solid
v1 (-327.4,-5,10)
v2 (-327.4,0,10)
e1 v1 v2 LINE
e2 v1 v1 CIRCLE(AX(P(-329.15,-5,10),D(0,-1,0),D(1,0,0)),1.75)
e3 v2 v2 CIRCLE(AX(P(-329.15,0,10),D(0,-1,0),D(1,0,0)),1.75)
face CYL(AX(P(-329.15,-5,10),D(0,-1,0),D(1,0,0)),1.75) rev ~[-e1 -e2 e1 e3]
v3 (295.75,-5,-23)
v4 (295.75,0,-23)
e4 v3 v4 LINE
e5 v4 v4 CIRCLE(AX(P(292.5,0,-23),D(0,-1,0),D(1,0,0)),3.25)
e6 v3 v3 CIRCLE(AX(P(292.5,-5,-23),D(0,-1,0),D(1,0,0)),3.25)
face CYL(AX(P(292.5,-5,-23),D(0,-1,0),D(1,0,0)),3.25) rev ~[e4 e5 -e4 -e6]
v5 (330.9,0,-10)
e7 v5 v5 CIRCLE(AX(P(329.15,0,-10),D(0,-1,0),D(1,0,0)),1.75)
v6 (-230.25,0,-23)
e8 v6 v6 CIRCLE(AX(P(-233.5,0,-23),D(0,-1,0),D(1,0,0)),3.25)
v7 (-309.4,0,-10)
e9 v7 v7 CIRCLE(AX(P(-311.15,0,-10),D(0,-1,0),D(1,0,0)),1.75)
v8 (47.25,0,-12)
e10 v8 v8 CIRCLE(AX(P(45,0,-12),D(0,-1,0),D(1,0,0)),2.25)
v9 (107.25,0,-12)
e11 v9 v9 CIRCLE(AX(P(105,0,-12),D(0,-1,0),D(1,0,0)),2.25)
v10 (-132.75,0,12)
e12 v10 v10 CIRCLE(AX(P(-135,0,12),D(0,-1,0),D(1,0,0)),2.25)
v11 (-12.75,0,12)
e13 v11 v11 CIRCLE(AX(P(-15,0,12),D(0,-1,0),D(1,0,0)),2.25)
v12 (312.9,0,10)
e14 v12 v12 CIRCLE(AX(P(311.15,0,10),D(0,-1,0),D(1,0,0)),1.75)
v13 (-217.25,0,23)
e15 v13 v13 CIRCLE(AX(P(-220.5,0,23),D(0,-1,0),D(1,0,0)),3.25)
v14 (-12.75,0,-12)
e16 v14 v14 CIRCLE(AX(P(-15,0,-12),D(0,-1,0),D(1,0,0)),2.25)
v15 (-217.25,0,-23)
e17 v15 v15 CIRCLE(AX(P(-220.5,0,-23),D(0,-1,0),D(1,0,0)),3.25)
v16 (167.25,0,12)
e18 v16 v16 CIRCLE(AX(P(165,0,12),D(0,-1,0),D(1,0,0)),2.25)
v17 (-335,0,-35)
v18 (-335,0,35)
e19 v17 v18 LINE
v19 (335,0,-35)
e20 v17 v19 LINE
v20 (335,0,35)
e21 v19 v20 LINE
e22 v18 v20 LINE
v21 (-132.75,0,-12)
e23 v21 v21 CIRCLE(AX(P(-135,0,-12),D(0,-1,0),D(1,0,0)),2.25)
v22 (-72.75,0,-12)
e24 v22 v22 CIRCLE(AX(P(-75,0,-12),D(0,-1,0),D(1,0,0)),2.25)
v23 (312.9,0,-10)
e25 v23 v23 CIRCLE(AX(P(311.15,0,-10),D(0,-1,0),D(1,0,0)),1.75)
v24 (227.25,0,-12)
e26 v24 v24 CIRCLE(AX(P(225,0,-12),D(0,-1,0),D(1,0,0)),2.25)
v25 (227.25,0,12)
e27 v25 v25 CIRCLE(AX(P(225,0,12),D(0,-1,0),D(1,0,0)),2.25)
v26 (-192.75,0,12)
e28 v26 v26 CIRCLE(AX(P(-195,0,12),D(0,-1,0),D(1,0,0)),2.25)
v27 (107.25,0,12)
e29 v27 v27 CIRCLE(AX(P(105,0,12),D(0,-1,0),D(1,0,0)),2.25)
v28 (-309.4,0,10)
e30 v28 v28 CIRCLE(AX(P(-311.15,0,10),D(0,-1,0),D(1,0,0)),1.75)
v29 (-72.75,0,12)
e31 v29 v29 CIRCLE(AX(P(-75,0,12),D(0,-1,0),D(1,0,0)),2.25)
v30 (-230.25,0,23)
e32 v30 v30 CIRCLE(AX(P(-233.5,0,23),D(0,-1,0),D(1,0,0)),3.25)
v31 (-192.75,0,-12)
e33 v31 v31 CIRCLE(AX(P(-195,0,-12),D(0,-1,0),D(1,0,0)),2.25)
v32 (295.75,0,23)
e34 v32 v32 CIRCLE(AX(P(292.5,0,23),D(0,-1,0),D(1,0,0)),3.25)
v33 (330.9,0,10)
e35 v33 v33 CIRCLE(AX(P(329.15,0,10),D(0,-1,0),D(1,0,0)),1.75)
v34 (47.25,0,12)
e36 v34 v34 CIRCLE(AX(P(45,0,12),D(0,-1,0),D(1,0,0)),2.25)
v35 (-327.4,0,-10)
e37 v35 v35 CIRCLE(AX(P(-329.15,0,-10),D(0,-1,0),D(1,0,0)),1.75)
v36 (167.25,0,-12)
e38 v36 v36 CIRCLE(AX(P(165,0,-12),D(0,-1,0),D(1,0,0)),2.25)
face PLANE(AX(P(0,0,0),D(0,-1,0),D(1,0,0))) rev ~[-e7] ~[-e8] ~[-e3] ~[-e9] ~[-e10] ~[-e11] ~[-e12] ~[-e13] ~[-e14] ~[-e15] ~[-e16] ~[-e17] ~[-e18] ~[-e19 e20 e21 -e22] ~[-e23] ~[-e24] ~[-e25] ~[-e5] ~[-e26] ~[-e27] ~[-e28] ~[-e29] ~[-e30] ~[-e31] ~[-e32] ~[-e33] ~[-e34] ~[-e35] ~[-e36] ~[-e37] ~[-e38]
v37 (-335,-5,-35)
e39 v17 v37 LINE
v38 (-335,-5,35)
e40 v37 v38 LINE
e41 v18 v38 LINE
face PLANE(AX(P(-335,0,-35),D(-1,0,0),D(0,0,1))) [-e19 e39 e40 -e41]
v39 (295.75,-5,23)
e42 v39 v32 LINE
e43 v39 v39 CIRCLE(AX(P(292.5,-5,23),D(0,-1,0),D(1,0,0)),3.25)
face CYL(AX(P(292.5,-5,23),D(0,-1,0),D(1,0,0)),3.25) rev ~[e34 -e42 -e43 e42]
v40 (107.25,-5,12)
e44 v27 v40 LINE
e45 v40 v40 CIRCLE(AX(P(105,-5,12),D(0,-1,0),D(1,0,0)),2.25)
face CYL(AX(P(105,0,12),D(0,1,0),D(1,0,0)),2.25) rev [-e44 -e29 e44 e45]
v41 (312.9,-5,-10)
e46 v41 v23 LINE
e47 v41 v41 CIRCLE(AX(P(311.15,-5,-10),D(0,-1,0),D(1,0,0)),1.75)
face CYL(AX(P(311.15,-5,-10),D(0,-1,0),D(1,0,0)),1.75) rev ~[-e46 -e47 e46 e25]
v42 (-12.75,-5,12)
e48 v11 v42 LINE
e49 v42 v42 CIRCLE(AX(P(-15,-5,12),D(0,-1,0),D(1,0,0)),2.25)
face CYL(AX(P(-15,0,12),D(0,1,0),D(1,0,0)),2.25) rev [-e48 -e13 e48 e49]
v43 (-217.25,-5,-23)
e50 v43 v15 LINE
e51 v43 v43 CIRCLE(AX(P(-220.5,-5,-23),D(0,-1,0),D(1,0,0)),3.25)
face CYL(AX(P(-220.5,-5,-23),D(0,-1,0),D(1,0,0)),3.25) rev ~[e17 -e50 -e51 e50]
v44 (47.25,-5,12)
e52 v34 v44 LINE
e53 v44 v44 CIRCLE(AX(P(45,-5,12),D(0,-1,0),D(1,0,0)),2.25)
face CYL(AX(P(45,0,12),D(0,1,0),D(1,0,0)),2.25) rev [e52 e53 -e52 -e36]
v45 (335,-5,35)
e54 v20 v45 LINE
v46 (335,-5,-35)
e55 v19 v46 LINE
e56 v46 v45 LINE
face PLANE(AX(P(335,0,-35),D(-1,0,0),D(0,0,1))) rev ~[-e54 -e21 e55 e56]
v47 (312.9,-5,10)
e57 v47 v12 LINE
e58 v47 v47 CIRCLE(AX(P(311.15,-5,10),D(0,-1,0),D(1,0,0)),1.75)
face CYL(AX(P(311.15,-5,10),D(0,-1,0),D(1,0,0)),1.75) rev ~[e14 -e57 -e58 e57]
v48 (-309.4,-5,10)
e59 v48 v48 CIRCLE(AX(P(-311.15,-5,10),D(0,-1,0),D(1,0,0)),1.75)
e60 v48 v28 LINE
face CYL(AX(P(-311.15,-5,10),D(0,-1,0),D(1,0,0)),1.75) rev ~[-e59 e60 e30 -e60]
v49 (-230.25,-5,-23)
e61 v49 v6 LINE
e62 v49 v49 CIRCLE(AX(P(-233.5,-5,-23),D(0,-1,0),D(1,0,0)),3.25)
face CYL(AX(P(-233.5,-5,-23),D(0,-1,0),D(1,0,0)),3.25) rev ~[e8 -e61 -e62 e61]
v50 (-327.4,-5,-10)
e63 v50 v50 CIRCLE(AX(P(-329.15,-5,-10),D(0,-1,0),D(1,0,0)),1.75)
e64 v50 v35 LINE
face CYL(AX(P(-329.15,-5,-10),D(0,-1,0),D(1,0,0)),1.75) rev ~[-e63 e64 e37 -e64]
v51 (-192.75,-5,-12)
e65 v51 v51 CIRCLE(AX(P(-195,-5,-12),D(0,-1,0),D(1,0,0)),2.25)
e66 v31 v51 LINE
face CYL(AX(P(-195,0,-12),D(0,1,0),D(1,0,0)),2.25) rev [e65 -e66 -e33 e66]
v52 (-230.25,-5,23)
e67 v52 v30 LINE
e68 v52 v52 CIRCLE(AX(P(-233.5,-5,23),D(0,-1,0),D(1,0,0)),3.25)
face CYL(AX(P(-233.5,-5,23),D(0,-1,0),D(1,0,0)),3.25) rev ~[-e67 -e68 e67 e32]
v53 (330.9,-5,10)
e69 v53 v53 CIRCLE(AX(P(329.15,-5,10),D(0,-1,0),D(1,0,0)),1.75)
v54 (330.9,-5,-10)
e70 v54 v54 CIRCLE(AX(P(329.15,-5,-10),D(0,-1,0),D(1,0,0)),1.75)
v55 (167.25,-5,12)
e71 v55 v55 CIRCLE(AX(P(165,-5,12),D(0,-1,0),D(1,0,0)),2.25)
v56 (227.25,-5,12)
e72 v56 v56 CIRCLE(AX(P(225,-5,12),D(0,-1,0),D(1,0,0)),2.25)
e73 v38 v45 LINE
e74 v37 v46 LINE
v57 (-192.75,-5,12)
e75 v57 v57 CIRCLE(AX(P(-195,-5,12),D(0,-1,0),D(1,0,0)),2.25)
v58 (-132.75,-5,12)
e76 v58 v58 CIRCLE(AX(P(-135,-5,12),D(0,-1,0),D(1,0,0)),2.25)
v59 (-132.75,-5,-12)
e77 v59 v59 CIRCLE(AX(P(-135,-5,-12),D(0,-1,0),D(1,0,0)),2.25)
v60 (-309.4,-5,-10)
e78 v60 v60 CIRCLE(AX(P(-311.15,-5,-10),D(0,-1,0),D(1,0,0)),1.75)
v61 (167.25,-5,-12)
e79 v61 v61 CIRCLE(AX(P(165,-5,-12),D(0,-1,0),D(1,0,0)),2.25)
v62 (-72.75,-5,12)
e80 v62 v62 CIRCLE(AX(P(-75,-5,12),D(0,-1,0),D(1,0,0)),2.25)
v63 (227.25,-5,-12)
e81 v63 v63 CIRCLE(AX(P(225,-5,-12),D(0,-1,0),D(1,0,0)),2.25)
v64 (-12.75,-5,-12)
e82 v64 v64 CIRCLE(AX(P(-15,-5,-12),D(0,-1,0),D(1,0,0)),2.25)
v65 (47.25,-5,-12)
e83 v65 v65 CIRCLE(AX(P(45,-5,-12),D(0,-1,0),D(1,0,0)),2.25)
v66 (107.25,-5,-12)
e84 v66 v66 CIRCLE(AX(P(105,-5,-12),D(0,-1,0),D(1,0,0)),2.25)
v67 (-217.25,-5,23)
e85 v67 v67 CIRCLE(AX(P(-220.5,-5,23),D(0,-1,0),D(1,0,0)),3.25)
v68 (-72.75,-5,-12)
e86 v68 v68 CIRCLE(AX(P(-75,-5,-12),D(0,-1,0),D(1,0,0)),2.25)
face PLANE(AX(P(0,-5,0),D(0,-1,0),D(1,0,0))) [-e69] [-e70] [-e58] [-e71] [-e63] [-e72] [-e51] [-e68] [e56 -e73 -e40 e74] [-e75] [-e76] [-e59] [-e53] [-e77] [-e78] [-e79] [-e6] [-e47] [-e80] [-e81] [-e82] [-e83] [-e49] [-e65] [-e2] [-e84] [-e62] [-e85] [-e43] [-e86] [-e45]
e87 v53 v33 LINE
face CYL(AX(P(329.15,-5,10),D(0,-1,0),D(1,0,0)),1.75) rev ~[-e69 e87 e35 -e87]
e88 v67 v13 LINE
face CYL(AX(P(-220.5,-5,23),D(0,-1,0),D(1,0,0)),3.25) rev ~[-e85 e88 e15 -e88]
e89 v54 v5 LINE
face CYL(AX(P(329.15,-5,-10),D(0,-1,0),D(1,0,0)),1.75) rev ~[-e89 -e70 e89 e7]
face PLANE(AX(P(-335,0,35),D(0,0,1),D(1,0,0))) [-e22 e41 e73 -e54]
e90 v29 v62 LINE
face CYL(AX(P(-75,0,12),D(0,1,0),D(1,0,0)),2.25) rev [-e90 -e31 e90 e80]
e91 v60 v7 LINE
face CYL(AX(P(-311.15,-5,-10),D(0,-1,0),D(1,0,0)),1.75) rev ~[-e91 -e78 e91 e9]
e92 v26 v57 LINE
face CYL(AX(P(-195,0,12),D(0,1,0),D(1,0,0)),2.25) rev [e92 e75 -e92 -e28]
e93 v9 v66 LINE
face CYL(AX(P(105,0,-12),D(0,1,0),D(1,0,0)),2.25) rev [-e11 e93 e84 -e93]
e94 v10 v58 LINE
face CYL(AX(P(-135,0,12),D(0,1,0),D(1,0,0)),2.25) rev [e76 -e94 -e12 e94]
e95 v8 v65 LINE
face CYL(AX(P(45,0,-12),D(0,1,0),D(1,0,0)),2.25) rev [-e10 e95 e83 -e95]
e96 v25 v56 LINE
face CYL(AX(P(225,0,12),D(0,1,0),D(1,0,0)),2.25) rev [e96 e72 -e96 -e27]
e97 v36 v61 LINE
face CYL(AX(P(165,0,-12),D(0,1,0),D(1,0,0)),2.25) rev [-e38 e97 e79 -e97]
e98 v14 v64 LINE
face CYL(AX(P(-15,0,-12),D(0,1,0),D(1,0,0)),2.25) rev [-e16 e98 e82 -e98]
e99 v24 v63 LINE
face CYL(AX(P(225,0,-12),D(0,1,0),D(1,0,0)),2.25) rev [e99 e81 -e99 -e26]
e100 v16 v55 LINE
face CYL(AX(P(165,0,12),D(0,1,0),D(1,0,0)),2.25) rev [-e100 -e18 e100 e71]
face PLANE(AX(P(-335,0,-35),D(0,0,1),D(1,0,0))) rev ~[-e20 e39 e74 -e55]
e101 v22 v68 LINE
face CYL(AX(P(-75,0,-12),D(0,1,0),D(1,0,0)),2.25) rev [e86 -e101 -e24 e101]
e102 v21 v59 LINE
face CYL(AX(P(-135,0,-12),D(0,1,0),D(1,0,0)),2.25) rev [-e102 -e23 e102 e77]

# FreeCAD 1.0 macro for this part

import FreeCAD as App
import Part
import Sketcher

doc = App.newDocument("Part")
params = doc.addObject("Spreadsheet::Sheet", "Params")
for row, (alias, value) in enumerate([
    ("sketch1_width", "670 mm"),
    ("sketch1_height", "70 mm"),
    ("pad1_length", "5 mm"),
    ("sketch2_diameter", "3.5 mm"),
    ("sketch3_diameter", "6.5 mm"),
    ("sketch4_diameter", "4.5 mm"),
], start=1):
    params.set(f"A{row}", alias)
    params.set(f"B{row}", "=" + value)
    params.setAlias(f"B{row}", alias)

body = doc.addObject("PartDesign::Body", "Body")

sketch1 = doc.addObject("Sketcher::SketchObject", "Sketch")
body.addObject(sketch1)
sketch1.AttachmentSupport = (doc.XZ_Plane, [""])
sketch1.MapMode = "FlatFace"
sketch1.addGeometry([
    Part.LineSegment(App.Vector(-335, 35, 0), App.Vector(-335, -35, 0)),
    Part.LineSegment(App.Vector(-335, -35, 0), App.Vector(335, -35, 0)),
    Part.LineSegment(App.Vector(335, -35, 0), App.Vector(335, 35, 0)),
    Part.LineSegment(App.Vector(335, 35, 0), App.Vector(-335, 35, 0)),
], False)
sketch1.addConstraint([
    Sketcher.Constraint("Coincident", 0, 2, 1, 1),
    Sketcher.Constraint("Coincident", 1, 2, 2, 1),
    Sketcher.Constraint("Coincident", 2, 2, 3, 1),
    Sketcher.Constraint("Coincident", 3, 2, 0, 1),
    Sketcher.Constraint("Vertical", 0),
    Sketcher.Constraint("Horizontal", 1),
    Sketcher.Constraint("Vertical", 2),
    Sketcher.Constraint("Horizontal", 3),
    Sketcher.Constraint("Symmetric", 0, 2, 2, 2, -1, 1),
    Sketcher.Constraint("DistanceX", 1, 1, 1, 2, 670.0),
    Sketcher.Constraint("DistanceY", 0, 2, 0, 1, 70.0),
])
sketch1.setExpression("Constraints[9]", "Params.sketch1_width")
sketch1.setExpression("Constraints[10]", "Params.sketch1_height")
pad1 = doc.addObject("PartDesign::Pad", "Pad")
body.addObject(pad1)
pad1.Profile = sketch1
pad1.setExpression("Length", "Params.pad1_length")

sketch2 = doc.addObject("Sketcher::SketchObject", "Sketch001")
body.addObject(sketch2)
sketch2.AttachmentSupport = (doc.XZ_Plane, [""])
sketch2.MapMode = "FlatFace"
sketch2.AttachmentOffset = App.Placement(App.Vector(0, 0, 5), App.Rotation())
sketch2.addGeometry([
    Part.Circle(App.Vector(-329.1, 10, 0), App.Vector(0, 0, 1), 1.8),
    Part.Circle(App.Vector(-311.1, 10, 0), App.Vector(0, 0, 1), 1.8),
    Part.Circle(App.Vector(-329.1, -10, 0), App.Vector(0, 0, 1), 1.8),
    Part.Circle(App.Vector(-311.1, -10, 0), App.Vector(0, 0, 1), 1.8),
    Part.Circle(App.Vector(329.1, 10, 0), App.Vector(0, 0, 1), 1.8),
    Part.Circle(App.Vector(311.1, 10, 0), App.Vector(0, 0, 1), 1.8),
    Part.Circle(App.Vector(311.1, -10, 0), App.Vector(0, 0, 1), 1.8),
    Part.Circle(App.Vector(329.1, -10, 0), App.Vector(0, 0, 1), 1.8),
], False)
sketch2.addConstraint([
    Sketcher.Constraint("Equal", 0, 1),
    Sketcher.Constraint("Equal", 1, 2),
    Sketcher.Constraint("Equal", 2, 3),
    Sketcher.Constraint("Equal", 3, 4),
    Sketcher.Constraint("Equal", 4, 5),
    Sketcher.Constraint("Equal", 5, 6),
    Sketcher.Constraint("Equal", 6, 7),
    Sketcher.Constraint("Symmetric", 2, 3, 4, 3, -1, 1),
    Sketcher.Constraint("Symmetric", 3, 3, 5, 3, -1, 1),
    Sketcher.Constraint("Symmetric", 1, 3, 6, 3, -1, 1),
    Sketcher.Constraint("Symmetric", 0, 3, 7, 3, -1, 1),
    Sketcher.Constraint("Symmetric", 0, 3, 4, 3, -2),
    Sketcher.Constraint("Symmetric", 1, 3, 5, 3, -2),
    Sketcher.Constraint("Horizontal", 0, 3, 1, 3),
    Sketcher.Constraint("Diameter", 0, 3.5),
    Sketcher.Constraint("DistanceY", -1, 1, 0, 3, 10.0),
    Sketcher.Constraint("DistanceX", 0, 3, 1, 3, 18.0),
    Sketcher.Constraint("DistanceX", 1, 3, 4, 3, 640.3),
])
sketch2.setExpression("Constraints[14]", "Params.sketch2_diameter")
pocket1 = doc.addObject("PartDesign::Pocket", "Pocket")
body.addObject(pocket1)
pocket1.Profile = sketch2
pocket1.Type = "ThroughAll"

sketch3 = doc.addObject("Sketcher::SketchObject", "Sketch002")
body.addObject(sketch3)
sketch3.AttachmentSupport = (doc.XZ_Plane, [""])
sketch3.MapMode = "FlatFace"
sketch3.AttachmentOffset = App.Placement(App.Vector(0, 0, 5), App.Rotation())
sketch3.addGeometry([
    Part.Circle(App.Vector(292.5, 23, 0), App.Vector(0, 0, 1), 3.2),
    Part.Circle(App.Vector(292.5, -23, 0), App.Vector(0, 0, 1), 3.2),
    Part.Circle(App.Vector(-233.5, 23, 0), App.Vector(0, 0, 1), 3.2),
    Part.Circle(App.Vector(-220.5, 23, 0), App.Vector(0, 0, 1), 3.2),
    Part.Circle(App.Vector(-220.5, -23, 0), App.Vector(0, 0, 1), 3.2),
    Part.Circle(App.Vector(-233.5, -23, 0), App.Vector(0, 0, 1), 3.2),
], False)
sketch3.addConstraint([
    Sketcher.Constraint("Equal", 0, 1),
    Sketcher.Constraint("Equal", 1, 2),
    Sketcher.Constraint("Equal", 2, 3),
    Sketcher.Constraint("Equal", 3, 4),
    Sketcher.Constraint("Equal", 4, 5),
    Sketcher.Constraint("Symmetric", 0, 3, 1, 3, -1),
    Sketcher.Constraint("Symmetric", 3, 3, 4, 3, -1),
    Sketcher.Constraint("Symmetric", 2, 3, 5, 3, -1),
    Sketcher.Constraint("Horizontal", 0, 3, 2, 3),
    Sketcher.Constraint("Horizontal", 2, 3, 3, 3),
    Sketcher.Constraint("Diameter", 0, 6.5),
    Sketcher.Constraint("DistanceY", -1, 1, 0, 3, 23.0),
    Sketcher.Constraint("DistanceX", 2, 3, 0, 3, 526.0),
    Sketcher.Constraint("DistanceX", 2, 3, 3, 3, 13.0),
    Sketcher.Constraint("DistanceX", -1, 1, 0, 3, 292.5),
])
sketch3.setExpression("Constraints[10]", "Params.sketch3_diameter")
pocket2 = doc.addObject("PartDesign::Pocket", "Pocket001")
body.addObject(pocket2)
pocket2.Profile = sketch3
pocket2.Type = "ThroughAll"

sketch4 = doc.addObject("Sketcher::SketchObject", "Sketch003")
body.addObject(sketch4)
sketch4.AttachmentSupport = (doc.XZ_Plane, [""])
sketch4.MapMode = "FlatFace"
sketch4.addGeometry([
    Part.Circle(App.Vector(-15, 12, 0), App.Vector(0, 0, 1), 2.2),
    Part.Circle(App.Vector(-75, 12, 0), App.Vector(0, 0, 1), 2.2),
    Part.Circle(App.Vector(-135, 12, 0), App.Vector(0, 0, 1), 2.2),
    Part.Circle(App.Vector(-195, 12, 0), App.Vector(0, 0, 1), 2.2),
    Part.Circle(App.Vector(225, 12, 0), App.Vector(0, 0, 1), 2.2),
    Part.Circle(App.Vector(165, 12, 0), App.Vector(0, 0, 1), 2.2),
    Part.Circle(App.Vector(105, 12, 0), App.Vector(0, 0, 1), 2.2),
    Part.Circle(App.Vector(45, 12, 0), App.Vector(0, 0, 1), 2.2),
    Part.Circle(App.Vector(-195, -12, 0), App.Vector(0, 0, 1), 2.2),
    Part.Circle(App.Vector(-135, -12, 0), App.Vector(0, 0, 1), 2.2),
    Part.Circle(App.Vector(-75, -12, 0), App.Vector(0, 0, 1), 2.2),
    Part.Circle(App.Vector(-15, -12, 0), App.Vector(0, 0, 1), 2.2),
    Part.Circle(App.Vector(45, -12, 0), App.Vector(0, 0, 1), 2.2),
    Part.Circle(App.Vector(105, -12, 0), App.Vector(0, 0, 1), 2.2),
    Part.Circle(App.Vector(165, -12, 0), App.Vector(0, 0, 1), 2.2),
    Part.Circle(App.Vector(225, -12, 0), App.Vector(0, 0, 1), 2.2),
], False)
sketch4.addConstraint([
    Sketcher.Constraint("Equal", 0, 1),
    Sketcher.Constraint("Equal", 1, 2),
    Sketcher.Constraint("Equal", 2, 3),
    Sketcher.Constraint("Equal", 3, 4),
    Sketcher.Constraint("Equal", 4, 5),
    Sketcher.Constraint("Equal", 5, 6),
    Sketcher.Constraint("Equal", 6, 7),
    Sketcher.Constraint("Equal", 7, 8),
    Sketcher.Constraint("Equal", 8, 9),
    Sketcher.Constraint("Equal", 9, 10),
    Sketcher.Constraint("Equal", 10, 11),
    Sketcher.Constraint("Equal", 11, 12),
    Sketcher.Constraint("Equal", 12, 13),
    Sketcher.Constraint("Equal", 13, 14),
    Sketcher.Constraint("Equal", 14, 15),
    Sketcher.Constraint("Symmetric", 3, 3, 8, 3, -1),
    Sketcher.Constraint("Symmetric", 2, 3, 9, 3, -1),
    Sketcher.Constraint("Symmetric", 1, 3, 10, 3, -1),
    Sketcher.Constraint("Symmetric", 0, 3, 11, 3, -1),
    Sketcher.Constraint("Symmetric", 7, 3, 12, 3, -1),
    Sketcher.Constraint("Symmetric", 6, 3, 13, 3, -1),
    Sketcher.Constraint("Symmetric", 5, 3, 14, 3, -1),
    Sketcher.Constraint("Symmetric", 4, 3, 15, 3, -1),
    Sketcher.Constraint("Horizontal", 0, 3, 1, 3),
    Sketcher.Constraint("Horizontal", 1, 3, 2, 3),
    Sketcher.Constraint("Horizontal", 2, 3, 3, 3),
    Sketcher.Constraint("Horizontal", 3, 3, 4, 3),
    Sketcher.Constraint("Horizontal", 4, 3, 5, 3),
    Sketcher.Constraint("Horizontal", 5, 3, 6, 3),
    Sketcher.Constraint("Horizontal", 6, 3, 7, 3),
    Sketcher.Constraint("Diameter", 0, 4.5),
    Sketcher.Constraint("DistanceX", 0, 3, -1, 1, 15.0),
    Sketcher.Constraint("DistanceY", -1, 1, 0, 3, 12.0),
    Sketcher.Constraint("DistanceX", 1, 3, -1, 1, 75.0),
    Sketcher.Constraint("DistanceX", 2, 3, -1, 1, 135.0),
    Sketcher.Constraint("DistanceX", 3, 3, -1, 1, 195.0),
    Sketcher.Constraint("DistanceX", -1, 1, 4, 3, 225.0),
    Sketcher.Constraint("DistanceX", -1, 1, 5, 3, 165.0),
    Sketcher.Constraint("DistanceX", -1, 1, 6, 3, 105.0),
    Sketcher.Constraint("DistanceX", -1, 1, 7, 3, 45.0),
])
sketch4.setExpression("Constraints[30]", "Params.sketch4_diameter")
pocket3 = doc.addObject("PartDesign::Pocket", "Pocket002")
body.addObject(pocket3)
pocket3.Profile = sketch4
pocket3.Type = "ThroughAll"
pocket3.Reversed = True

doc.recompute()
